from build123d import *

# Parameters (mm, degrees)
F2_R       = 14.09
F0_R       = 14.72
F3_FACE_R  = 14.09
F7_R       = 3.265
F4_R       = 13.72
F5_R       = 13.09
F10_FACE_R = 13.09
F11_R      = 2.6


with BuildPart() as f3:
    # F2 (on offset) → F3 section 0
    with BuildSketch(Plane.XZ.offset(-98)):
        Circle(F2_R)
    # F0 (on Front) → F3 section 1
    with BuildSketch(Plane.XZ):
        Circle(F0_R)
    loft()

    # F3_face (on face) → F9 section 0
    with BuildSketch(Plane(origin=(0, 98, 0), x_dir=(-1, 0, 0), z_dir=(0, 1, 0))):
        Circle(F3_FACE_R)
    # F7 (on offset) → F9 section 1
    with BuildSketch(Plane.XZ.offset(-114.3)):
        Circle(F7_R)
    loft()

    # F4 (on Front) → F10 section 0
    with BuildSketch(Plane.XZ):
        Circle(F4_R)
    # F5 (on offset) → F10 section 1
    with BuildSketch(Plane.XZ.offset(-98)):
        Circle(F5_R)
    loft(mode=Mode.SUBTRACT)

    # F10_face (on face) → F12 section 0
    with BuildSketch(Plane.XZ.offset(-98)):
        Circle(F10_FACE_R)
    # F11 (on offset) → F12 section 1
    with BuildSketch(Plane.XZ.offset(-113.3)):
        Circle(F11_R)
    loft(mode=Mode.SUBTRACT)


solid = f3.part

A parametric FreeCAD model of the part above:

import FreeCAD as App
import Part
import Sketcher

V = App.Vector

doc = App.newDocument("Part")
body = doc.addObject("PartDesign::Body", "Body")

# Sketch on XZ plane
sketch1 = body.newObject("Sketcher::SketchObject", "Sketch")
sketch1.AttachmentSupport = (doc.getObject("XZ_Plane"), [""])
sketch1.MapMode = "FlatFace"
sketch1.AttachmentOffset = App.Placement(V(0, 0, -98), App.Rotation())
sketch1.addGeometry(Part.Circle(V(0, 0, 0), V(0, 0, 1), 14), False)
sketch1.addConstraint([
    Sketcher.Constraint("Coincident", 0, 3, -1, 1),
    Sketcher.Constraint("Diameter", 0, 28.18),
])

# Sketch on XZ plane
sketch2 = body.newObject("Sketcher::SketchObject", "Sketch001")
sketch2.AttachmentSupport = (doc.getObject("XZ_Plane"), [""])
sketch2.MapMode = "FlatFace"
sketch2.addGeometry(Part.Circle(V(0, 0, 0), V(0, 0, 1), 15), False)
sketch2.addConstraint([
    Sketcher.Constraint("Coincident", 0, 3, -1, 1),
    Sketcher.Constraint("Diameter", 0, 29.44),
])

additiveloft = body.newObject("PartDesign::AdditiveLoft", "AdditiveLoft")
additiveloft.Profile = sketch1
additiveloft.Sections = [sketch2]

# Sketch on XZ plane
sketch3 = body.newObject("Sketcher::SketchObject", "Sketch002")
sketch3.AttachmentSupport = (doc.getObject("XZ_Plane"), [""])
sketch3.MapMode = "FlatFace"
sketch3.AttachmentOffset = App.Placement(V(0, 0, -98), App.Rotation())
sketch3.addGeometry(Part.Circle(V(0, 0, 0), V(0, 0, 1), 14), False)
sketch3.addConstraint([
    Sketcher.Constraint("Coincident", 0, 3, -1, 1),
    Sketcher.Constraint("Diameter", 0, 28.18),
])

# Sketch on XZ plane
sketch4 = body.newObject("Sketcher::SketchObject", "Sketch003")
sketch4.AttachmentSupport = (doc.getObject("XZ_Plane"), [""])
sketch4.MapMode = "FlatFace"
sketch4.AttachmentOffset = App.Placement(V(0, 0, -114.3), App.Rotation())
sketch4.addGeometry(Part.Circle(V(0, 0, 0), V(0, 0, 1), 3.3), False)
sketch4.addConstraint([
    Sketcher.Constraint("Coincident", 0, 3, -1, 1),
    Sketcher.Constraint("Diameter", 0, 6.53),
])

additiveloft2 = body.newObject("PartDesign::AdditiveLoft", "AdditiveLoft001")
additiveloft2.Profile = sketch3
additiveloft2.Sections = [sketch4]

# Sketch on XZ plane
sketch5 = body.newObject("Sketcher::SketchObject", "Sketch004")
sketch5.AttachmentSupport = (doc.getObject("XZ_Plane"), [""])
sketch5.MapMode = "FlatFace"
sketch5.addGeometry(Part.Circle(V(0, 0, 0), V(0, 0, 1), 14), False)
sketch5.addConstraint([
    Sketcher.Constraint("Coincident", 0, 3, -1, 1),
    Sketcher.Constraint("Diameter", 0, 27.44),
])

# Sketch on XZ plane
sketch6 = body.newObject("Sketcher::SketchObject", "Sketch005")
sketch6.AttachmentSupport = (doc.getObject("XZ_Plane"), [""])
sketch6.MapMode = "FlatFace"
sketch6.AttachmentOffset = App.Placement(V(0, 0, -98), App.Rotation())
sketch6.addGeometry(Part.Circle(V(0, 0, 0), V(0, 0, 1), 13), False)
sketch6.addConstraint([
    Sketcher.Constraint("Coincident", 0, 3, -1, 1),
    Sketcher.Constraint("Diameter", 0, 26.18),
])

subtractiveloft = body.newObject("PartDesign::SubtractiveLoft", "SubtractiveLoft")
subtractiveloft.Profile = sketch5
subtractiveloft.Sections = [sketch6]

# Sketch on XZ plane
sketch7 = body.newObject("Sketcher::SketchObject", "Sketch006")
sketch7.AttachmentSupport = (doc.getObject("XZ_Plane"), [""])
sketch7.MapMode = "FlatFace"
sketch7.AttachmentOffset = App.Placement(V(0, 0, -98), App.Rotation())
sketch7.addGeometry(Part.Circle(V(0, 0, 0), V(0, 0, 1), 13), False)
sketch7.addConstraint([
    Sketcher.Constraint("Coincident", 0, 3, -1, 1),
    Sketcher.Constraint("Diameter", 0, 26.18),
])

# Sketch on XZ plane
sketch8 = body.newObject("Sketcher::SketchObject", "Sketch007")
sketch8.AttachmentSupport = (doc.getObject("XZ_Plane"), [""])
sketch8.MapMode = "FlatFace"
sketch8.AttachmentOffset = App.Placement(V(0, 0, -113.3), App.Rotation())
sketch8.addGeometry(Part.Circle(V(0, 0, 0), V(0, 0, 1), 2.6), False)
sketch8.addConstraint([
    Sketcher.Constraint("Coincident", 0, 3, -1, 1),
    Sketcher.Constraint("Diameter", 0, 5.2),
])

subtractiveloft2 = body.newObject("PartDesign::SubtractiveLoft", "SubtractiveLoft001")
subtractiveloft2.Profile = sketch7
subtractiveloft2.Sections = [sketch8]

doc.recompute()
